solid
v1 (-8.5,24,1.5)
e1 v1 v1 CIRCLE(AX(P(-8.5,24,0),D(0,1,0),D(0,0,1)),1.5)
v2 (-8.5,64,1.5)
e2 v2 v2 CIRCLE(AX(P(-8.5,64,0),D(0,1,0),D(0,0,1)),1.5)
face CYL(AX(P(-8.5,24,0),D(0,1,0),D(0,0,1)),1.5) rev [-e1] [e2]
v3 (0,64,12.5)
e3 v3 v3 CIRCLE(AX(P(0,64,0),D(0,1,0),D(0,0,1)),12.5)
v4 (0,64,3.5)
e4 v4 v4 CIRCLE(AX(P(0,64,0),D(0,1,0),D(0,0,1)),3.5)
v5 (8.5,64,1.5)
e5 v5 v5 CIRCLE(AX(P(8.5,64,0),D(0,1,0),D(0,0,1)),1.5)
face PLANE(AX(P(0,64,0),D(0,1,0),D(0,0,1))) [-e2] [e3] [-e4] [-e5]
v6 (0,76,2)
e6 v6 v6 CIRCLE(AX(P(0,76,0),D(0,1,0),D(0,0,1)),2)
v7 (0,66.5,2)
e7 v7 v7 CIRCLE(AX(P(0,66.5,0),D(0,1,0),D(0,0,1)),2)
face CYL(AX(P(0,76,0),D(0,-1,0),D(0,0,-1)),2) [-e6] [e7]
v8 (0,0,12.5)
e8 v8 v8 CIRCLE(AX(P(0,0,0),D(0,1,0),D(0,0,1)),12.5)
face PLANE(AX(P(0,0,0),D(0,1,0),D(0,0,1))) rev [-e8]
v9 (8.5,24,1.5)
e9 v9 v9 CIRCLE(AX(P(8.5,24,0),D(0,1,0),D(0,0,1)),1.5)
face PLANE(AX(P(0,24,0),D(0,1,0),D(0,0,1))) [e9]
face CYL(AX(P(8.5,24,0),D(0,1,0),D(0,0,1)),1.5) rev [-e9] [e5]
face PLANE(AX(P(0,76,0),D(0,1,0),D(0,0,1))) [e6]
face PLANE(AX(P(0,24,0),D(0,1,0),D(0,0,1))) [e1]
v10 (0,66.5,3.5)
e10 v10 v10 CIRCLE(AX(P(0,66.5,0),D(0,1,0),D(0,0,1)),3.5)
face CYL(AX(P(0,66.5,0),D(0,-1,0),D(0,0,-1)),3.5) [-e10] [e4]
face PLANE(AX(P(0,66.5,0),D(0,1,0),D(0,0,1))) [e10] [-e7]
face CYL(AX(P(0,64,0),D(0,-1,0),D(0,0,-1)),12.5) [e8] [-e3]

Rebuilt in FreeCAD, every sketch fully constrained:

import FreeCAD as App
import Part
import Sketcher

doc = App.newDocument("Part")
body = doc.addObject("PartDesign::Body", "Body")

# Sketch on XZ plane
sketch1 = body.newObject("Sketcher::SketchObject", "Sketch")
sketch1.AttachmentSupport = (doc.getObject("XZ_Plane"), [""])
sketch1.MapMode = "FlatFace"
sketch1.addGeometry(Part.Circle(App.Vector(0, 0, 0), App.Vector(0, 0, 1), 12), False)
sketch1.addConstraint(Sketcher.Constraint("Coincident", 0, 3, -1, 1))
sketch1.addConstraint(Sketcher.Constraint("Diameter", 0, 25.0))
pad1 = body.newObject("PartDesign::Pad", "Pad")
pad1.Profile = sketch1
pad1.Length = 64
pad1.Reversed = True

# Sketch on XZ plane
sketch2 = body.newObject("Sketcher::SketchObject", "Sketch001")
sketch2.AttachmentSupport = (doc.getObject("XZ_Plane"), [""])
sketch2.MapMode = "FlatFace"
sketch2.AttachmentOffset = App.Placement(App.Vector(0, 0, -64), App.Rotation())
sketch2.addGeometry(Part.Circle(App.Vector(-8.5, 0, 0), App.Vector(0, 0, 1), 1.5), False)
sketch2.addGeometry(Part.Circle(App.Vector(8.5, 0, 0), App.Vector(0, 0, 1), 1.5), False)
sketch2.addConstraint(Sketcher.Constraint("Equal", 0, 1))
sketch2.addConstraint(Sketcher.Constraint("Symmetric", 0, 3, 1, 3, -1, 1))
sketch2.addConstraint(Sketcher.Constraint("PointOnObject", 0, 3, -1))
sketch2.addConstraint(Sketcher.Constraint("Diameter", 0, 3.0))
sketch2.addConstraint(Sketcher.Constraint("DistanceX", 0, 3, 1, 3, 17.0))
pocket1 = body.newObject("PartDesign::Pocket", "Pocket")
pocket1.Profile = sketch2
pocket1.Length = 40
pocket1.Reversed = True

# Sketch on XZ plane
sketch3 = body.newObject("Sketcher::SketchObject", "Sketch002")
sketch3.AttachmentSupport = (doc.getObject("XZ_Plane"), [""])
sketch3.MapMode = "FlatFace"
sketch3.AttachmentOffset = App.Placement(App.Vector(0, 0, -64), App.Rotation())
sketch3.addGeometry(Part.Circle(App.Vector(0, 0, 0), App.Vector(0, 0, 1), 3.5), False)
sketch3.addConstraint(Sketcher.Constraint("Coincident", 0, 3, -1, 1))
sketch3.addConstraint(Sketcher.Constraint("Diameter", 0, 7.0))
pad2 = body.newObject("PartDesign::Pad", "Pad001")
pad2.Profile = sketch3
pad2.Length = 2.5
pad2.Reversed = True

# Sketch on XZ plane
sketch4 = body.newObject("Sketcher::SketchObject", "Sketch003")
sketch4.AttachmentSupport = (doc.getObject("XZ_Plane"), [""])
sketch4.MapMode = "FlatFace"
sketch4.AttachmentOffset = App.Placement(App.Vector(0, 0, -66.5), App.Rotation())
sketch4.addGeometry(Part.Circle(App.Vector(0, 0, 0), App.Vector(0, 0, 1), 2), False)
sketch4.addConstraint(Sketcher.Constraint("Coincident", 0, 3, -1, 1))
sketch4.addConstraint(Sketcher.Constraint("Diameter", 0, 4.0))
pad3 = body.newObject("PartDesign::Pad", "Pad002")
pad3.Profile = sketch4
pad3.Length = 9.5
pad3.Reversed = True

doc.recompute()
